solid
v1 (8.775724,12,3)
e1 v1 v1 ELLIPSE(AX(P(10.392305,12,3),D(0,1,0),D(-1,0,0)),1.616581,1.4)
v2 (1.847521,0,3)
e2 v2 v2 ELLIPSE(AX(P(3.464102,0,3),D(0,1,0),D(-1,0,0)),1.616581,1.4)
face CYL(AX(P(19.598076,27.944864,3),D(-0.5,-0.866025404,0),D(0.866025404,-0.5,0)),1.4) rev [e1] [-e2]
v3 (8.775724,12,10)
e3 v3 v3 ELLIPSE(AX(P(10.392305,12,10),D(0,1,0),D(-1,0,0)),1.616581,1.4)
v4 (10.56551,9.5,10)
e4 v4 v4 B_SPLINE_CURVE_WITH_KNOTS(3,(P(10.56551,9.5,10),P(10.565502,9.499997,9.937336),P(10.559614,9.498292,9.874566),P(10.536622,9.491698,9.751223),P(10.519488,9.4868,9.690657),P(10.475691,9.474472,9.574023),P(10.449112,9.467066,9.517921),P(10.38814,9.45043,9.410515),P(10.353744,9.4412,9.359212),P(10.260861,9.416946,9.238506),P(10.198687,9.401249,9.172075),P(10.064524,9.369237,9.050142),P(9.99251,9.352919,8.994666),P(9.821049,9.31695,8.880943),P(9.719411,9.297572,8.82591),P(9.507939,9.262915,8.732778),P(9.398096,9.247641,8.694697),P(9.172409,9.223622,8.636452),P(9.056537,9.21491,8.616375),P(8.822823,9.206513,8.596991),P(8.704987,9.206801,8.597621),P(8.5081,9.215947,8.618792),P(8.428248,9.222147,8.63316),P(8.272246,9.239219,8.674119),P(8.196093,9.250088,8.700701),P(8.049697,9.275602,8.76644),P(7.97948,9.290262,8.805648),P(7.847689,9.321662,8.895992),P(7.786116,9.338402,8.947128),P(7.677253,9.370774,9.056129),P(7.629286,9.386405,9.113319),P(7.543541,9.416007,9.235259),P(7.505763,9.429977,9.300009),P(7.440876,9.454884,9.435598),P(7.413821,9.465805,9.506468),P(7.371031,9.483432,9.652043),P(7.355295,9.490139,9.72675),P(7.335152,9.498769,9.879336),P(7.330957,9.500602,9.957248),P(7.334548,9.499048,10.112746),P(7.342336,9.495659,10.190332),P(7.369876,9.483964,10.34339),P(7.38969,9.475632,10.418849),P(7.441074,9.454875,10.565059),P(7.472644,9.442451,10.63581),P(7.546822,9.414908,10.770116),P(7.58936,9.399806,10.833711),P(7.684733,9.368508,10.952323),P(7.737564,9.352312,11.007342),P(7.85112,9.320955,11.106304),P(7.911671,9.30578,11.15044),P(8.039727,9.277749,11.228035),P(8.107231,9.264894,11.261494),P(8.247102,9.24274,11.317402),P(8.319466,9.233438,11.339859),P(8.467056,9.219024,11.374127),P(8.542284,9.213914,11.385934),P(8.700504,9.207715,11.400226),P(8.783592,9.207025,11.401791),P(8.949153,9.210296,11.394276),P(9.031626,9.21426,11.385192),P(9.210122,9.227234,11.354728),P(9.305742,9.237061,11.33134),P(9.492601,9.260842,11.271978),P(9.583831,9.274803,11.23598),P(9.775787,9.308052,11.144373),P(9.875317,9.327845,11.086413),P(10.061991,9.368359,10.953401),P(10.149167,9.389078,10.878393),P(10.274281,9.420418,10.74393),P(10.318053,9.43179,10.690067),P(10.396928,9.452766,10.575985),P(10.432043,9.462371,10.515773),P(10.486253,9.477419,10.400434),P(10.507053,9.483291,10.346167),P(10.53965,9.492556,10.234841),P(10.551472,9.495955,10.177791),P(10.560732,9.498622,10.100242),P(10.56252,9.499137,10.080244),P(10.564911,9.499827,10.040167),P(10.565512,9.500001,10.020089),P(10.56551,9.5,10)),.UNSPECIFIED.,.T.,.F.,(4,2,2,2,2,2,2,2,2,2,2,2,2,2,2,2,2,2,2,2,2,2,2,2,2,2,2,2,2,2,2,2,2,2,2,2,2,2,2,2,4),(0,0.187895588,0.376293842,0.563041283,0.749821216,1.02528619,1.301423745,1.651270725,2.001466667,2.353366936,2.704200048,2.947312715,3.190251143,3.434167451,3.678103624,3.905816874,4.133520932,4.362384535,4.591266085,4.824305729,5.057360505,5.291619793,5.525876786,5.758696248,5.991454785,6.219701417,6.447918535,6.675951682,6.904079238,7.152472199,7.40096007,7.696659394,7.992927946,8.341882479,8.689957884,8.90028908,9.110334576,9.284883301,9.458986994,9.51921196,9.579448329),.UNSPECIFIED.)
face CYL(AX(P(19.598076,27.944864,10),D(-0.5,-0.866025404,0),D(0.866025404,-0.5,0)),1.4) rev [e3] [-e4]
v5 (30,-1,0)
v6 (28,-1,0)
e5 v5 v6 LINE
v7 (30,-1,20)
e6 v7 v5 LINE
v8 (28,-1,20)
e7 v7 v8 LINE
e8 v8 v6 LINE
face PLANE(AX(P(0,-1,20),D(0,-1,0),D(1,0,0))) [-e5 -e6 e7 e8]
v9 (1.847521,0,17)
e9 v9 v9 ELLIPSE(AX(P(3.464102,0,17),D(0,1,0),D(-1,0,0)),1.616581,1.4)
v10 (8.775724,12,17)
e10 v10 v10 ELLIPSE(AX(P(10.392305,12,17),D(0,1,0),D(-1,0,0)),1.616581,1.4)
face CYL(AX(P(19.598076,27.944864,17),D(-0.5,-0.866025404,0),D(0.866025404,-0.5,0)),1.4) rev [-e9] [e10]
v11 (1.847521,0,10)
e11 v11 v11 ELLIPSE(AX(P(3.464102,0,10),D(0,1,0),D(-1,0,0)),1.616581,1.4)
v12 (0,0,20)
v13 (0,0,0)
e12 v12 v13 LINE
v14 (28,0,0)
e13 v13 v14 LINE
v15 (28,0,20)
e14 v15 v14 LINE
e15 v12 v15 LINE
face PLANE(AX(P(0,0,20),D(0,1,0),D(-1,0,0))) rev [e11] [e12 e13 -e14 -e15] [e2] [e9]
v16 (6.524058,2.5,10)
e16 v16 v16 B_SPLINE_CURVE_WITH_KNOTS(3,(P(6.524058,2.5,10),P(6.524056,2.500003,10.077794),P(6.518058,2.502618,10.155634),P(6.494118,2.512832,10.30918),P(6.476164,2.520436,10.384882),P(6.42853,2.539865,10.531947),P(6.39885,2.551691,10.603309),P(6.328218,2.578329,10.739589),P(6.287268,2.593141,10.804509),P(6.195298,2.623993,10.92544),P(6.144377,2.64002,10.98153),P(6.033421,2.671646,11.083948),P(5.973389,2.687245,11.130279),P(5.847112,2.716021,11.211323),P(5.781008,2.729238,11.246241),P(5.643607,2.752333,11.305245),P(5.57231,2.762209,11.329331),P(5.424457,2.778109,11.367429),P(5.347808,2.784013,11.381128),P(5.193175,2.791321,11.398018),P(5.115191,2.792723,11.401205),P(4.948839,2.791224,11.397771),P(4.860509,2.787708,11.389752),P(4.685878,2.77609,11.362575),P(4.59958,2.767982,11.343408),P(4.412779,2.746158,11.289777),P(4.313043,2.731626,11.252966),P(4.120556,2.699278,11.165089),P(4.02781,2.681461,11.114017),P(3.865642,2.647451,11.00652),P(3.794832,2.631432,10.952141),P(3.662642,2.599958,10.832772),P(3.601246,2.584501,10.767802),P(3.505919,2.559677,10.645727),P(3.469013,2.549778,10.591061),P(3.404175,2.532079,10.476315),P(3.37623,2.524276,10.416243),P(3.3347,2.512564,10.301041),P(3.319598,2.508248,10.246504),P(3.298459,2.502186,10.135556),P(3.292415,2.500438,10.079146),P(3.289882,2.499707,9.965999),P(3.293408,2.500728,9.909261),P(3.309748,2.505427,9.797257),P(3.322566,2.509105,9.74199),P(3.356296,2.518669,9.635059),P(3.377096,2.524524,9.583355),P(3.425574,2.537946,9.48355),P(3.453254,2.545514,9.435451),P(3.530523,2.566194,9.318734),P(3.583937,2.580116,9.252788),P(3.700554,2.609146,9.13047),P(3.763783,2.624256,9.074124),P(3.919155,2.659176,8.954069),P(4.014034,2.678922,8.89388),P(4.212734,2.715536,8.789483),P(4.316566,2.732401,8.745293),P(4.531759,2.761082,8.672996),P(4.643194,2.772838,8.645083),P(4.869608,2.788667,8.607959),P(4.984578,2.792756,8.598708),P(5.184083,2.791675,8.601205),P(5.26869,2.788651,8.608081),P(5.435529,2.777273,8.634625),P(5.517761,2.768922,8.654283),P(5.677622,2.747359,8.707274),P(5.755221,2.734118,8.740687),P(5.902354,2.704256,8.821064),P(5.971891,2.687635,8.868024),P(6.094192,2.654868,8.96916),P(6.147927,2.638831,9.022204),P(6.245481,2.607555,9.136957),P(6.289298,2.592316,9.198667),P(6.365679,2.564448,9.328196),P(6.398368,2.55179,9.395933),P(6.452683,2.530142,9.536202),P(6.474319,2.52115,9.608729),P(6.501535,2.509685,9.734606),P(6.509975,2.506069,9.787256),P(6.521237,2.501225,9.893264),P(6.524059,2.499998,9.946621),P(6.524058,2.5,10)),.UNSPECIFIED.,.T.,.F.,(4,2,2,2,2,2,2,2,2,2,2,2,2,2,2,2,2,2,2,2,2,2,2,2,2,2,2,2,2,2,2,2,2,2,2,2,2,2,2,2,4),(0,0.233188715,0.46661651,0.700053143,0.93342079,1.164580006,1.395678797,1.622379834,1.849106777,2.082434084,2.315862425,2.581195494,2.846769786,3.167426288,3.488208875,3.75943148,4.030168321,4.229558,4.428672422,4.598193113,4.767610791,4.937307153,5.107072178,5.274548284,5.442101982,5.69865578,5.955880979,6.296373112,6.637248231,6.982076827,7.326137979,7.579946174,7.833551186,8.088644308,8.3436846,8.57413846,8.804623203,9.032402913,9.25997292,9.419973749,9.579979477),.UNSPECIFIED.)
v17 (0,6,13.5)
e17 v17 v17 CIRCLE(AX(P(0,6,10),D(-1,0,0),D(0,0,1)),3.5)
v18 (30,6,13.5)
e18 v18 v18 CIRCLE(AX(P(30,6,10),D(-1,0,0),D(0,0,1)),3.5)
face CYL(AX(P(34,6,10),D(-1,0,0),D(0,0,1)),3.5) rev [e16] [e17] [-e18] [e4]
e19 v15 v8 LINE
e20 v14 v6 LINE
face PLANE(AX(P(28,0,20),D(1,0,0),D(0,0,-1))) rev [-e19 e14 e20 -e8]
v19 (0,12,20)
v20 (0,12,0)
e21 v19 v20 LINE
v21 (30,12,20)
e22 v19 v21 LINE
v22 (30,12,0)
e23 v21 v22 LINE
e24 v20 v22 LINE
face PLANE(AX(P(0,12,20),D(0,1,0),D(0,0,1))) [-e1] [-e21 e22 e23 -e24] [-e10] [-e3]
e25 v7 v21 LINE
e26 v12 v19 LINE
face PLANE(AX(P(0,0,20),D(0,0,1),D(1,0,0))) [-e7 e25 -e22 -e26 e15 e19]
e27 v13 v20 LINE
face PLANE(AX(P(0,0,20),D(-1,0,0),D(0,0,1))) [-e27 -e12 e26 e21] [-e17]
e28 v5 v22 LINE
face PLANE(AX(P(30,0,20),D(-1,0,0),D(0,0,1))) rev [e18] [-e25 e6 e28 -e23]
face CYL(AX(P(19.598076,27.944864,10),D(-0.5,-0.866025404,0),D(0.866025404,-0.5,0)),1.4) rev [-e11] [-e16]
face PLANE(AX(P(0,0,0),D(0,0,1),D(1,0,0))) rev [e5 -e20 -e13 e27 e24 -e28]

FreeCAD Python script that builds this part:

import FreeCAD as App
import Part
import Sketcher

V = App.Vector
Q = App.Units.Quantity


def add_polygon(sketch, points):
    """Adds a closed chain of lines whose ends are joined by coincident constraints."""
    first, n = sketch.GeometryCount, len(points)
    for a, b in zip(points, points[1:] + points[:1]):
        sketch.addGeometry(Part.LineSegment(App.Vector(*a, 0), App.Vector(*b, 0)), False)
    for i in range(n):
        sketch.addConstraint(Sketcher.Constraint("Coincident", first + i, 2, first + (i + 1) % n, 1))

doc = App.newDocument("Part")
body = doc.addObject("PartDesign::Body", "Body")

# Sketch on XY plane
sketch1 = doc.addObject("Sketcher::SketchObject", "Sketch")
body.addObject(sketch1)
sketch1.AttachmentSupport = (doc.XY_Plane, [""])
sketch1.MapMode = "FlatFace"
add_polygon(sketch1, [(0, 12), (0, 0), (28, 0), (28, -1), (30, -1), (30, 12)])  # lines 0-5
sketch1.addConstraint(Sketcher.Constraint("Vertical", 0))
sketch1.addConstraint(Sketcher.Constraint("Horizontal", 1))
sketch1.addConstraint(Sketcher.Constraint("Vertical", 2))
sketch1.addConstraint(Sketcher.Constraint("Horizontal", 3))
sketch1.addConstraint(Sketcher.Constraint("Vertical", 4))
sketch1.addConstraint(Sketcher.Constraint("Horizontal", 5))
sketch1.addConstraint(Sketcher.Constraint("Coincident", 0, 2, -1, 1))
sketch1.addConstraint(Sketcher.Constraint("DistanceX", 1, 1, 1, 2, Q("28 mm")))
sketch1.addConstraint(Sketcher.Constraint("DistanceX", 3, 1, 3, 2, Q("2 mm")))
sketch1.addConstraint(Sketcher.Constraint("DistanceY", 0, 2, 0, 1, Q("12 mm")))
sketch1.addConstraint(Sketcher.Constraint("DistanceY", 2, 2, 2, 1, Q("1 mm")))
pad1 = doc.addObject("PartDesign::Pad", "Pad")
body.addObject(pad1)
pad1.Profile = sketch1
pad1.Length = 20

# Sketch on YZ plane
sketch2 = doc.addObject("Sketcher::SketchObject", "Sketch001")
body.addObject(sketch2)
sketch2.AttachmentSupport = (doc.YZ_Plane, [""])
sketch2.MapMode = "FlatFace"
sketch2.addGeometry(Part.Circle(V(6, 10, 0), V(0, 0, 1), 3.5), False)
sketch2.addConstraint(Sketcher.Constraint("Diameter", 0, Q("7 mm")))
sketch2.addConstraint(Sketcher.Constraint("DistanceX", -1, 1, 0, 3, Q("6 mm")))
sketch2.addConstraint(Sketcher.Constraint("DistanceY", -1, 1, 0, 3, Q("10 mm")))
pocket1 = doc.addObject("PartDesign::Pocket", "Pocket")
body.addObject(pocket1)
pocket1.Profile = sketch2
pocket1.Length = 34
pocket1.Reversed = True

# Sketch on an angled plane
sketch3 = doc.addObject("Sketcher::SketchObject", "Sketch002")
body.addObject(sketch3)
sketch3.Placement = App.Placement(V(0, 0, 0), App.Rotation(V(0, 0, -1), V(0.866025404, -0.5, 0), V(-0.5, -0.866025404, 0), "ZXY"))
sketch3.addGeometry(Part.Circle(V(-10, 3, 0), V(0, 0, 1), 1.4), False)
sketch3.addGeometry(Part.Circle(V(-17, 3, 0), V(0, 0, 1), 1.4), False)
sketch3.addGeometry(Part.Circle(V(-3, 3, 0), V(0, 0, 1), 1.4), False)
sketch3.addConstraint(Sketcher.Constraint("Equal", 0, 1))
sketch3.addConstraint(Sketcher.Constraint("Equal", 1, 2))
sketch3.addConstraint(Sketcher.Constraint("Horizontal", 0, 3, 1, 3))
sketch3.addConstraint(Sketcher.Constraint("Horizontal", 1, 3, 2, 3))
sketch3.addConstraint(Sketcher.Constraint("Diameter", 0, Q("2.8 mm")))
sketch3.addConstraint(Sketcher.Constraint("DistanceX", 0, 3, -1, 1, Q("10 mm")))
sketch3.addConstraint(Sketcher.Constraint("DistanceY", -1, 1, 0, 3, Q("3 mm")))
sketch3.addConstraint(Sketcher.Constraint("DistanceX", 1, 3, -1, 1, Q("17 mm")))
sketch3.addConstraint(Sketcher.Constraint("DistanceX", 2, 3, -1, 1, Q("3 mm")))
pocket2 = doc.addObject("PartDesign::Pocket", "Pocket001")
body.addObject(pocket2)
pocket2.Profile = sketch3
pocket2.Length = 34

doc.recompute()
